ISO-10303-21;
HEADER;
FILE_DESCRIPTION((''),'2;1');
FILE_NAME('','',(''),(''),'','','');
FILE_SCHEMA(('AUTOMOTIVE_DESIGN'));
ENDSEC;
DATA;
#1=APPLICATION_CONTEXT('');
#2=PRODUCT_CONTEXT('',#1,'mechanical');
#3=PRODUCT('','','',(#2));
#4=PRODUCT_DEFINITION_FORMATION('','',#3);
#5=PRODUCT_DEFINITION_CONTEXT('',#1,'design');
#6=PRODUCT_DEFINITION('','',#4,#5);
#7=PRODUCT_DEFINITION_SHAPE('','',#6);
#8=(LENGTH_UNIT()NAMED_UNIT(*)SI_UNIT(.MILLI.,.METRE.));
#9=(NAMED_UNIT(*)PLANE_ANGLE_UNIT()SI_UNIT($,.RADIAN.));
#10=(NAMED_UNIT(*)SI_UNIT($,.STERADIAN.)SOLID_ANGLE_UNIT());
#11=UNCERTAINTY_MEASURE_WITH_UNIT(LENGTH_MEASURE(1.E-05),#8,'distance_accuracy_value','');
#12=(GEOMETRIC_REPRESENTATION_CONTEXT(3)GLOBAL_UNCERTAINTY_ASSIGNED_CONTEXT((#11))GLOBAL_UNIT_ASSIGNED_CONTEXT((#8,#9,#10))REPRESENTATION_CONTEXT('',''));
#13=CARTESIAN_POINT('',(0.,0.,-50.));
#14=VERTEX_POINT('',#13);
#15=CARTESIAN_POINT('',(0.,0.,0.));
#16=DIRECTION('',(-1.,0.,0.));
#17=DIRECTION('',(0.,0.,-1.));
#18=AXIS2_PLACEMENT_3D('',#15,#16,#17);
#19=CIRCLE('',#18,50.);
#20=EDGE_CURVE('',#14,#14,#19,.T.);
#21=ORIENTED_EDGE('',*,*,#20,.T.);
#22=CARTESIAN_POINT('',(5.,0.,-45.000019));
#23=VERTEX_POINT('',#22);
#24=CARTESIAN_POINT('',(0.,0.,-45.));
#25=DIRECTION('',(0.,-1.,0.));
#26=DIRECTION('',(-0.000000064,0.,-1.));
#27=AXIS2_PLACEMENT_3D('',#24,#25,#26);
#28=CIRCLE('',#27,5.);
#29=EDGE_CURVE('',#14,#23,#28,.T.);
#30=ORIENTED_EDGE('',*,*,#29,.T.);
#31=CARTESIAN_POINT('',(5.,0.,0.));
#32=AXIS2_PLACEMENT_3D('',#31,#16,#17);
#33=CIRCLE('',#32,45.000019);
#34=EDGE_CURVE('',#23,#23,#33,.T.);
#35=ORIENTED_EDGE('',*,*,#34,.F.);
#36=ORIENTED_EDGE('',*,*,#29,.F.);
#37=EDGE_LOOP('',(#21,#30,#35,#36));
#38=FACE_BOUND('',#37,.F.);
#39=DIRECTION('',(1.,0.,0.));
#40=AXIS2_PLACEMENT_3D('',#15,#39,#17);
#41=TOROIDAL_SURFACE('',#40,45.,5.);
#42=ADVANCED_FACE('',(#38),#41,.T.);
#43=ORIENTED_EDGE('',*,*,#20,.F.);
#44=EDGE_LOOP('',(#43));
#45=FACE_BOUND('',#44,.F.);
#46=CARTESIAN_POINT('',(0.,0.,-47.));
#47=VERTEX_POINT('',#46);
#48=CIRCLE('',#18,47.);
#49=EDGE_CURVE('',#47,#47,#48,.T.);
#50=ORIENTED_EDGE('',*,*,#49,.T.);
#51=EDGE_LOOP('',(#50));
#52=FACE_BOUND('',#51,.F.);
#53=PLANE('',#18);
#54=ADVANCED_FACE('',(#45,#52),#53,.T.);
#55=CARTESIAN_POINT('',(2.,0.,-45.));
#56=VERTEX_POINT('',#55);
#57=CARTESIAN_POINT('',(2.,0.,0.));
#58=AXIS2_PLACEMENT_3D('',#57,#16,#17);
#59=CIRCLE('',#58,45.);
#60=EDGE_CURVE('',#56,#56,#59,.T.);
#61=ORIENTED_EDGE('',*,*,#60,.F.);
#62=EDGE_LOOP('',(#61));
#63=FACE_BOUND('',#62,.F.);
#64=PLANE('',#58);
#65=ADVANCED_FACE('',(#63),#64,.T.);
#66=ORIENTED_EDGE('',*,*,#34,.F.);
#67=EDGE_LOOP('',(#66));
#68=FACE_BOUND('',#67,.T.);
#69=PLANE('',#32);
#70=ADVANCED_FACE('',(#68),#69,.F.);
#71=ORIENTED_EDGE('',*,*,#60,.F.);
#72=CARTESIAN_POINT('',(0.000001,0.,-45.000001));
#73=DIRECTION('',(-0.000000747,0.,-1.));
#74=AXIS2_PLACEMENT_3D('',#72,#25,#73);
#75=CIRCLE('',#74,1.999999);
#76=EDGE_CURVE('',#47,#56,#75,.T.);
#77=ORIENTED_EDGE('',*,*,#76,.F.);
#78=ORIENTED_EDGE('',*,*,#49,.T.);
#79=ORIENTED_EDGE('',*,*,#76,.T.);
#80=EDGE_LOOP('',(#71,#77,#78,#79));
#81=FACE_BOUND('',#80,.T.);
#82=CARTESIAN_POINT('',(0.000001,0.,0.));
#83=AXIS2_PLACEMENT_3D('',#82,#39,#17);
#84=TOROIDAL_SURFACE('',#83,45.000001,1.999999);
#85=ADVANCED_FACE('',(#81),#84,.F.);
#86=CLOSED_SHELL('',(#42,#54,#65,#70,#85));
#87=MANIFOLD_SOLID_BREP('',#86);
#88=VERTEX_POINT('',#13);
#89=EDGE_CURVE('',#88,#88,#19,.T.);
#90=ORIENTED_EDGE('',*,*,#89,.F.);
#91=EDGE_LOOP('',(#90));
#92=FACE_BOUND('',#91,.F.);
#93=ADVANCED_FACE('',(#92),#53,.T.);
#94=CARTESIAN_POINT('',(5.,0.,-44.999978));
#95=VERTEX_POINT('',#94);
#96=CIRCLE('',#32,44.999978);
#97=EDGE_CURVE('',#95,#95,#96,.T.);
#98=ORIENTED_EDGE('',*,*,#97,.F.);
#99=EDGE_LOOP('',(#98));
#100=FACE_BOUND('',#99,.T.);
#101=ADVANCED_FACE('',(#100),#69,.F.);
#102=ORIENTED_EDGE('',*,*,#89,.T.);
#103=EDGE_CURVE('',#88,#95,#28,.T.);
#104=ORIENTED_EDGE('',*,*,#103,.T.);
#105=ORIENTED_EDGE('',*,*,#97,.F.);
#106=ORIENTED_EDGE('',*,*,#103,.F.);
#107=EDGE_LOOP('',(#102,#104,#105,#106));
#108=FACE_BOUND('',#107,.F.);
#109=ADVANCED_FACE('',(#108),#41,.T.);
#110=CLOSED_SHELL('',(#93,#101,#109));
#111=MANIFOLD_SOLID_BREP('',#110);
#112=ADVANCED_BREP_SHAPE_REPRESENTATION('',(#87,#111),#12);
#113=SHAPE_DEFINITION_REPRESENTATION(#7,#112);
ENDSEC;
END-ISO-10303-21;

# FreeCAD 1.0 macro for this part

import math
import FreeCAD as App
import Part
import Sketcher
from FreeCAD import Vector
Q = App.Units.Quantity

doc = App.newDocument("Part")
body = doc.addObject("PartDesign::Body", "Body")

sketch1 = body.newObject("Sketcher::SketchObject", "Sketch")
sketch1.AttachmentSupport = (doc.getObject("XZ_Plane"), [""])
sketch1.MapMode = "FlatFace"
sketch1.addGeometry([
    Part.LineSegment(Vector(0, 0, 0), Vector(0, -47, 0)),
    Part.ArcOfCircle(Part.Circle(Vector(0, -45, 0), Vector(0, 0, 1), 2), math.radians(-90), math.radians(0)),
    Part.LineSegment(Vector(2, -45, 0), Vector(2, 0, 0)),
    Part.LineSegment(Vector(2, 0, 0), Vector(0, 0, 0)),
], False)
sketch1.addConstraint([
    Sketcher.Constraint("Coincident", 0, 2, 1, 1),
    Sketcher.Constraint("Tangent", 1, 2, 2, 1),
    Sketcher.Constraint("Coincident", 2, 2, 3, 1),
    Sketcher.Constraint("Coincident", 3, 2, 0, 1),
    Sketcher.Constraint("Vertical", 0),
    Sketcher.Constraint("Vertical", 2),
    Sketcher.Constraint("Horizontal", 3),
    Sketcher.Constraint("Coincident", 3, 2, -1, 1),
    Sketcher.Constraint("PointOnObject", 1, 3, -2),
    Sketcher.Constraint("Radius", 1, Q("1.999999 mm")),
    Sketcher.Constraint("DistanceY", 0, 2, 0, 1, Q("47 mm")),
])
revolution = body.newObject("PartDesign::Revolution", "Revolution")
revolution.Profile = sketch1
revolution.ReferenceAxis = (sketch1, ["H_Axis"])
revolution.Angle = 360
body2 = doc.addObject("PartDesign::Body", "Body001")

sketch2 = body2.newObject("Sketcher::SketchObject", "Sketch001")
sketch2.AttachmentSupport = (doc.getObject("XZ_Plane001"), [""])
sketch2.MapMode = "FlatFace"
sketch2.addGeometry([
    Part.LineSegment(Vector(0, 0, 0), Vector(0, -50, 0)),
    Part.ArcOfCircle(Part.Circle(Vector(0, -45, 0), Vector(0, 0, 1), 5), math.radians(-90), math.radians(0)),
    Part.LineSegment(Vector(5, -45, 0), Vector(5, 0, 0)),
    Part.LineSegment(Vector(5, 0, 0), Vector(0, 0, 0)),
], False)
sketch2.addConstraint([
    Sketcher.Constraint("Coincident", 0, 2, 1, 1),
    Sketcher.Constraint("Coincident", 1, 2, 2, 1),
    Sketcher.Constraint("Coincident", 2, 2, 3, 1),
    Sketcher.Constraint("Coincident", 3, 2, 0, 1),
    Sketcher.Constraint("Vertical", 0),
    Sketcher.Constraint("Vertical", 2),
    Sketcher.Constraint("Horizontal", 3),
    Sketcher.Constraint("Coincident", 3, 2, -1, 1),
    Sketcher.Constraint("PointOnObject", 1, 3, -2),
    Sketcher.Constraint("Radius", 1, Q("5 mm")),
    Sketcher.Constraint("DistanceY", 0, 2, 0, 1, Q("50 mm")),
    Sketcher.Constraint("DistanceY", 2, 1, 2, 2, Q("45.000019 mm")),
])
revolution2 = body2.newObject("PartDesign::Revolution", "Revolution001")
revolution2.Profile = sketch2
revolution2.ReferenceAxis = (sketch2, ["H_Axis"])
revolution2.Angle = 360
doc.recompute()

boolean = body2.newObject("PartDesign::Boolean", "Boolean")
boolean.Type = "Cut"
boolean.addObjects([body])
body3 = doc.addObject("PartDesign::Body", "Body002")

sketch3 = body3.newObject("Sketcher::SketchObject", "Sketch002")
sketch3.AttachmentSupport = (doc.getObject("XZ_Plane002"), [""])
sketch3.MapMode = "FlatFace"
sketch3.addGeometry([
    Part.LineSegment(Vector(0, 0, 0), Vector(0, -50, 0)),
    Part.ArcOfCircle(Part.Circle(Vector(0, -45, 0), Vector(0, 0, 1), 5), math.radians(-90.000004), math.radians(0.000256)),
    Part.LineSegment(Vector(5, -44.999978, 0), Vector(5, 0, 0)),
    Part.LineSegment(Vector(5, 0, 0), Vector(0, 0, 0)),
], False)
sketch3.addConstraint([
    Sketcher.Constraint("Coincident", 0, 2, 1, 1),
    Sketcher.Constraint("Coincident", 1, 2, 2, 1),
    Sketcher.Constraint("Coincident", 2, 2, 3, 1),
    Sketcher.Constraint("Coincident", 3, 2, 0, 1),
    Sketcher.Constraint("Vertical", 0),
    Sketcher.Constraint("Vertical", 2),
    Sketcher.Constraint("Horizontal", 3),
    Sketcher.Constraint("Coincident", 3, 2, -1, 1),
    Sketcher.Constraint("PointOnObject", 1, 3, -2),
    Sketcher.Constraint("Radius", 1, Q("5 mm")),
    Sketcher.Constraint("DistanceY", 0, 2, 0, 1, Q("50 mm")),
    Sketcher.Constraint("DistanceY", 2, 1, 2, 2, Q("44.999978 mm")),
])
revolution3 = body3.newObject("PartDesign::Revolution", "Revolution002")
revolution3.Profile = sketch3
revolution3.ReferenceAxis = (sketch3, ["H_Axis"])
revolution3.Angle = 360

doc.recompute()
